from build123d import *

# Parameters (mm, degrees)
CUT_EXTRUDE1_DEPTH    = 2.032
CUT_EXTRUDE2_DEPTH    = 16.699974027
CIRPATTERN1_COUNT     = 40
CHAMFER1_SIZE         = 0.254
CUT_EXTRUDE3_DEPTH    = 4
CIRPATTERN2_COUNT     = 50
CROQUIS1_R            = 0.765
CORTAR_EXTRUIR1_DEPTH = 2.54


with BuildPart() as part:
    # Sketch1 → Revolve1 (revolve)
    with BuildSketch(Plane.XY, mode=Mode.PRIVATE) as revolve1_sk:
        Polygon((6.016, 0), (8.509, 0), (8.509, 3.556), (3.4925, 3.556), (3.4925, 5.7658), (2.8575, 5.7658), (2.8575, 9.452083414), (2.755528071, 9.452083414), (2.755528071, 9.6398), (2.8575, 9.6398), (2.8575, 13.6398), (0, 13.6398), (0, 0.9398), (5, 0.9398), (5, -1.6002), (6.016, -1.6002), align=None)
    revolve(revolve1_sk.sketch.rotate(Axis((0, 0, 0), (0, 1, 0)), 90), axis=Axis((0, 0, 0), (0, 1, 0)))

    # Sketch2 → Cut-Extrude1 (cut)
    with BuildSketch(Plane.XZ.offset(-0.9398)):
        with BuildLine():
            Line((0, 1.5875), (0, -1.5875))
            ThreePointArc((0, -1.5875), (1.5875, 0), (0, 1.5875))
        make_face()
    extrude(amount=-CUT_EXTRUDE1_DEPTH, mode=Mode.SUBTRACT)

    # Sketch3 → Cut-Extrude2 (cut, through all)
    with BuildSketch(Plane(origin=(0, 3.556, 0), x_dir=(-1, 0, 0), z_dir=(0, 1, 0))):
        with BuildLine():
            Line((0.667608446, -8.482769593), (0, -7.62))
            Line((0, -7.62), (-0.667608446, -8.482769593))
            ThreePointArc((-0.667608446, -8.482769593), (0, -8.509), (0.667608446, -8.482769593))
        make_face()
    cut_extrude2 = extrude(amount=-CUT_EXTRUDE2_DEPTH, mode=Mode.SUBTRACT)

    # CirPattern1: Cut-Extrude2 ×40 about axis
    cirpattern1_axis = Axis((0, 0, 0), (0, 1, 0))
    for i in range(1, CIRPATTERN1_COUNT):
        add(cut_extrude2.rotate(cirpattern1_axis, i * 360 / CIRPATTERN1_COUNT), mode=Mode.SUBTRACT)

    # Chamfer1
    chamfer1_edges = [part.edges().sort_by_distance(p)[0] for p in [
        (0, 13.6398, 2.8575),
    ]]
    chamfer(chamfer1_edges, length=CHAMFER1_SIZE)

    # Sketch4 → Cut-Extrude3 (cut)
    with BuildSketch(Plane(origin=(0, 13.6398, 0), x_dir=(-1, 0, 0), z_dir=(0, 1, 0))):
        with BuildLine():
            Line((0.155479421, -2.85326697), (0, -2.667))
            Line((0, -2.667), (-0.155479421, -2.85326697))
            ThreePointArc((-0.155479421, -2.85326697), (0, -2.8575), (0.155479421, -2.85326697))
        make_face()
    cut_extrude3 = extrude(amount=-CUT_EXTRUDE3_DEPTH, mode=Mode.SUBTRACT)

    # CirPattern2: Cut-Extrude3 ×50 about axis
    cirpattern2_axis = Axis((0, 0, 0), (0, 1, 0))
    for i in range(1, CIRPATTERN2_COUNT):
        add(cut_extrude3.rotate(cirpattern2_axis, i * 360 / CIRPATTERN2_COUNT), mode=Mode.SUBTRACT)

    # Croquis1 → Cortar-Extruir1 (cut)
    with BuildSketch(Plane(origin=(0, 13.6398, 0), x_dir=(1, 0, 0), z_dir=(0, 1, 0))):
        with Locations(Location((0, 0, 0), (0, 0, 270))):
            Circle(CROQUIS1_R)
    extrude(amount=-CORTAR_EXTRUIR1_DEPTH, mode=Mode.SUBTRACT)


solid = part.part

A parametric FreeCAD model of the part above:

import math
import FreeCAD as App
import Part
import Sketcher
Q = App.Units.Quantity


def edges_at(feature, points):
    """Names of the edges that pass closest to the given points."""
    edges = feature.Shape.Edges
    near = lambda p: min(range(len(edges)), key=lambda i: edges[i].distToShape(Part.Vertex(*p))[0])
    return sorted({f"Edge{near(p) + 1}" for p in points})


def add_polygon(sketch, points):
    """Adds a closed chain of lines whose ends are joined by coincident constraints."""
    first, n = sketch.GeometryCount, len(points)
    for a, b in zip(points, points[1:] + points[:1]):
        sketch.addGeometry(Part.LineSegment(App.Vector(*a, 0), App.Vector(*b, 0)), False)
    for i in range(n):
        sketch.addConstraint(Sketcher.Constraint("Coincident", first + i, 2, first + (i + 1) % n, 1))

doc = App.newDocument("Part")
params = doc.addObject("Spreadsheet::Sheet", "Params")
for row, (alias, value) in enumerate([
    ("sketch1_height", "0.5 in"),
    ("sketch1_height2", "0.1 in"),
    ("sketch1_width", "0.04 in"),
    ("sketch1_height3", "0.14 in"),
    ("sketch1_width2", "0.025 in"),
    ("revolution_angle", "360 deg"),
    ("sketch2_radius", "0.0625 in"),
    ("pocket1_length", "0.08 in"),
    ("sketch3_radius", "0.335 in"),
    ("chamfer_size", "0.01 in"),
    ("pocket3_length", "4 mm"),
    ("pocket4_length", "0.1 in"),
], start=1):
    params.set(f"A{row}", alias)
    params.set(f"B{row}", "=" + value)
    params.setAlias(f"B{row}", alias)

body = doc.addObject("PartDesign::Body", "Body")

sketch1 = body.newObject("Sketcher::SketchObject", "Sketch")
sketch1.AttachmentSupport = (doc.getObject("XY_Plane"), [""])
sketch1.MapMode = "FlatFace"
add_polygon(sketch1, [(6.02, 0), (8.51, 0), (8.51, 3.56), (3.49, 3.56), (3.49, 5.77), (2.86, 5.77), (2.86, 9.45), (2.76, 9.45), (2.76, 9.64), (2.86, 9.64), (2.86, 13.64), (0, 13.64), (0, 0.94), (5, 0.94), (5, -1.6), (6.02, -1.6)])
sketch1.addConstraint([
    Sketcher.Constraint("Horizontal", 0),
    Sketcher.Constraint("Vertical", 1),
    Sketcher.Constraint("Horizontal", 2),
    Sketcher.Constraint("Vertical", 3),
    Sketcher.Constraint("Horizontal", 4),
    Sketcher.Constraint("Vertical", 5),
    Sketcher.Constraint("Horizontal", 6),
    Sketcher.Constraint("Vertical", 7),
    Sketcher.Constraint("Horizontal", 8),
    Sketcher.Constraint("Vertical", 9),
    Sketcher.Constraint("Horizontal", 10),
    Sketcher.Constraint("Vertical", 11),
    Sketcher.Constraint("Horizontal", 12),
    Sketcher.Constraint("Vertical", 13),
    Sketcher.Constraint("Horizontal", 14),
    Sketcher.Constraint("Vertical", 15),
    Sketcher.Constraint("PointOnObject", 0, 2, -1),
    Sketcher.Constraint("PointOnObject", 10, 2, -2),
    Sketcher.Constraint("Vertical", 5, 2, 8, 2),
    Sketcher.Constraint("DistanceY", 11, 2, 11, 1, Q("0.5 in")),
    Sketcher.Constraint("DistanceY", 13, 2, 13, 1, Q("0.1 in")),
    Sketcher.Constraint("DistanceX", 14, 1, 14, 2, Q("0.04 in")),
    Sketcher.Constraint("DistanceY", 1, 1, 1, 2, Q("0.14 in")),
    Sketcher.Constraint("DistanceX", 4, 2, 4, 1, Q("0.025 in")),
    Sketcher.Constraint("DistanceY", 3, 1, 3, 2, Q("0.087 in")),
    Sketcher.Constraint("DistanceY", 15, 1, 15, 2, Q("0.063 in")),
    Sketcher.Constraint("DistanceX", 2, 2, 2, 1, Q("0.1975 in")),
    Sketcher.Constraint("DistanceX", 10, 2, 10, 1, Q("0.1125 in")),
    Sketcher.Constraint("DistanceX", 0, 1, 0, 2, Q("2.493 mm")),
    Sketcher.Constraint("DistanceY", 9, 1, 9, 2, Q("4 mm")),
    Sketcher.Constraint("DistanceX", 6, 2, 6, 1, Q("0.101972 mm")),
    Sketcher.Constraint("DistanceY", 5, 1, 5, 2, Q("3.686283 mm")),
])
sketch1.setExpression("Constraints[35]", "Params.sketch1_height")
sketch1.setExpression("Constraints[36]", "Params.sketch1_height2")
sketch1.setExpression("Constraints[37]", "Params.sketch1_width")
sketch1.setExpression("Constraints[38]", "Params.sketch1_height3")
sketch1.setExpression("Constraints[39]", "Params.sketch1_width2")
revolution = body.newObject("PartDesign::Revolution", "Revolution")
revolution.Profile = sketch1
revolution.ReferenceAxis = (sketch1, ["V_Axis"])
revolution.setExpression("Angle", "Params.revolution_angle")

sketch2 = body.newObject("Sketcher::SketchObject", "Sketch001")
sketch2.AttachmentSupport = (doc.getObject("XZ_Plane"), [""])
sketch2.MapMode = "FlatFace"
sketch2.AttachmentOffset = App.Placement(App.Vector(0, 0, -0.037 * 25.4), App.Rotation())
sketch2.addGeometry([
    Part.LineSegment(App.Vector(0, 1.6, 0), App.Vector(0, -1.6, 0)),
    Part.ArcOfCircle(Part.Circle(App.Vector(0, 0, 0), App.Vector(0, 0, 1), 1.6), math.radians(-90), math.radians(90)),
], False)
sketch2.addConstraint([
    Sketcher.Constraint("Coincident", 0, 1, 1, 2),
    Sketcher.Constraint("Coincident", 1, 1, 0, 2),
    Sketcher.Constraint("Vertical", 0),
    Sketcher.Constraint("Coincident", 1, 3, -1, 1),
    Sketcher.Constraint("PointOnObject", 0, 1, -2),
    Sketcher.Constraint("Radius", 1, Q("0.0625 in")),
])
sketch2.setExpression("Constraints[5]", "Params.sketch2_radius")
pocket1 = body.newObject("PartDesign::Pocket", "Pocket")
pocket1.Profile = sketch2
pocket1.setExpression("Length", "Params.pocket1_length")

sketch3 = body.newObject("Sketcher::SketchObject", "Sketch002")
sketch3.AttachmentSupport = (doc.getObject("XZ_Plane"), [""])
sketch3.MapMode = "FlatFace"
sketch3.AttachmentOffset = App.Placement(App.Vector(0, 0, -0.14 * 25.4), App.Rotation())
sketch3.addGeometry([
    Part.LineSegment(App.Vector(-0.7, -8.5, 0), App.Vector(0, -7.6, 0)),
    Part.LineSegment(App.Vector(0, -7.6, 0), App.Vector(0.7, -8.5, 0)),
    Part.ArcOfCircle(Part.Circle(App.Vector(0, 0, 0), App.Vector(0, 0, 1), 8.5), math.radians(-94.5), math.radians(-85.5)),
], False)
sketch3.addConstraint([
    Sketcher.Constraint("Coincident", 0, 2, 1, 1),
    Sketcher.Constraint("Coincident", 1, 2, 2, 2),
    Sketcher.Constraint("Coincident", 2, 1, 0, 1),
    Sketcher.Constraint("Coincident", 2, 3, -1, 1),
    Sketcher.Constraint("PointOnObject", 0, 2, -2),
    Sketcher.Constraint("Horizontal", 1, 2, 2, 1),
    Sketcher.Constraint("Radius", 2, Q("0.335 in")),
    Sketcher.Constraint("DistanceY", 0, 2, -1, 1, Q("0.3 in")),
    Sketcher.Constraint("DistanceX", -1, 1, 1, 2, Q("0.667608 mm")),
])
sketch3.setExpression("Constraints[6]", "Params.sketch3_radius")
pocket2 = body.newObject("PartDesign::Pocket", "Pocket001")
pocket2.Profile = sketch3
pocket2.Type = "ThroughAll"
pocket2.Reversed = True
doc.recompute()

polarpattern = body.newObject("PartDesign::PolarPattern", "PolarPattern")
polarpattern.Originals = [pocket2]
polarpattern.Axis = (doc.getObject("Y_Axis"), [""])
polarpattern.Angle = 360
polarpattern.Occurrences = 40
body.Tip = polarpattern
doc.recompute()

chamfer = body.newObject("PartDesign::Chamfer", "Chamfer")
chamfer.Base = (polarpattern, edges_at(polarpattern, [(0, 13.64, 2.857)]))
chamfer.setExpression("Size", "Params.chamfer_size")

sketch4 = body.newObject("Sketcher::SketchObject", "Sketch003")
sketch4.AttachmentSupport = (doc.getObject("XZ_Plane"), [""])
sketch4.MapMode = "FlatFace"
sketch4.AttachmentOffset = App.Placement(App.Vector(0, 0, -0.537 * 25.4), App.Rotation())
sketch4.addGeometry([
    Part.LineSegment(App.Vector(-0.16, -2.85, 0), App.Vector(0, -2.67, 0)),
    Part.LineSegment(App.Vector(0, -2.67, 0), App.Vector(0.16, -2.85, 0)),
    Part.ArcOfCircle(Part.Circle(App.Vector(0, 0, 0), App.Vector(0, 0, 1), 2.86), math.radians(-93.12), math.radians(-86.88)),
], False)
sketch4.addConstraint([
    Sketcher.Constraint("Coincident", 0, 2, 1, 1),
    Sketcher.Constraint("Coincident", 1, 2, 2, 2),
    Sketcher.Constraint("Coincident", 2, 1, 0, 1),
    Sketcher.Constraint("Coincident", 2, 3, -1, 1),
    Sketcher.Constraint("PointOnObject", 0, 2, -2),
    Sketcher.Constraint("Horizontal", 1, 2, 2, 1),
    Sketcher.Constraint("Radius", 2, Q("0.1125 in")),
    Sketcher.Constraint("DistanceY", 0, 2, -1, 1, Q("0.105 in")),
    Sketcher.Constraint("Distance", 0, Q("0.24263 mm")),
])
pocket3 = body.newObject("PartDesign::Pocket", "Pocket002")
pocket3.Profile = sketch4
pocket3.setExpression("Length", "Params.pocket3_length")
pocket3.Reversed = True
doc.recompute()

polarpattern2 = body.newObject("PartDesign::PolarPattern", "PolarPattern001")
polarpattern2.Originals = [pocket3]
polarpattern2.Axis = (doc.getObject("Y_Axis"), [""])
polarpattern2.Angle = 360
polarpattern2.Occurrences = 50
body.Tip = polarpattern2

sketch5 = body.newObject("Sketcher::SketchObject", "Sketch004")
sketch5.AttachmentSupport = (doc.getObject("XZ_Plane"), [""])
sketch5.MapMode = "FlatFace"
sketch5.AttachmentOffset = App.Placement(App.Vector(0, 0, -0.537 * 25.4), App.Rotation())
sketch5.addGeometry(Part.Circle(App.Vector(0, 0, 0), App.Vector(0, 0, 1), 0.8), False)
sketch5.addConstraint([
    Sketcher.Constraint("Coincident", 0, 3, -1, 1),
    Sketcher.Constraint("Diameter", 0, Q("1.53 mm")),
])
pocket4 = body.newObject("PartDesign::Pocket", "Pocket003")
pocket4.Profile = sketch5
pocket4.setExpression("Length", "Params.pocket4_length")
pocket4.Reversed = True

doc.recompute()
